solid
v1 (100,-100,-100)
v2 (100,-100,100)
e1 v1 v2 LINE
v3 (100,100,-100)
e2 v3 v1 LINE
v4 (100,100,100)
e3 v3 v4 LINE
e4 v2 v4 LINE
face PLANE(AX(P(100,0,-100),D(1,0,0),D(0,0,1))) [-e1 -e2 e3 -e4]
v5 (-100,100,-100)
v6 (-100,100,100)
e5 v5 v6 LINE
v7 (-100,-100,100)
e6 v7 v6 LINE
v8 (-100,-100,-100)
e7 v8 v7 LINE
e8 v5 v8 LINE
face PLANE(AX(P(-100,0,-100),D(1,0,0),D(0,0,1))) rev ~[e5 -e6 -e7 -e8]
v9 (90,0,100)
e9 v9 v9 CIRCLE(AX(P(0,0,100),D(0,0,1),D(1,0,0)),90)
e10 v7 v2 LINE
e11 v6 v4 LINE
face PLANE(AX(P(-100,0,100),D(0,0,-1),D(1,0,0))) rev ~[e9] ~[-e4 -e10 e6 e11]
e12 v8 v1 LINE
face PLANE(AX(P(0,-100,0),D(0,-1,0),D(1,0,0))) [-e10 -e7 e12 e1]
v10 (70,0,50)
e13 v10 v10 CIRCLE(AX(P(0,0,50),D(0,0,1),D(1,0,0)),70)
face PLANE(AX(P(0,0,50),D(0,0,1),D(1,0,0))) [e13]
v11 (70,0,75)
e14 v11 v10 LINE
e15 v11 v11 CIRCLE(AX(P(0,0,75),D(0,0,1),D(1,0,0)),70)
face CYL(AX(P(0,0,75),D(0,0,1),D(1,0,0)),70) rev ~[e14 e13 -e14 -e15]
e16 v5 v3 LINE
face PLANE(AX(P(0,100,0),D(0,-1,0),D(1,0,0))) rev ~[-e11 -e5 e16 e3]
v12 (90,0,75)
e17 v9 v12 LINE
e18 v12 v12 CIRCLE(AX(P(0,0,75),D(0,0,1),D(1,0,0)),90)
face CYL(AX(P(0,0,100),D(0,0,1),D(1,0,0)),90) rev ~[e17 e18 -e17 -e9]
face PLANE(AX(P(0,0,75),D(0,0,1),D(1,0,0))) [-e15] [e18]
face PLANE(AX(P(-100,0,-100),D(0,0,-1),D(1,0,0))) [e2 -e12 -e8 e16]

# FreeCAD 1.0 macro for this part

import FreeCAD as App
import Part
import Sketcher
from FreeCAD import Vector
Q = App.Units.Quantity

doc = App.newDocument("Part")
params = doc.addObject("Spreadsheet::Sheet", "Params")
for row, (alias, value) in enumerate([
    ("sketch1_width", "200 mm"),
    ("pad1_length", "200 mm"),
    ("sketch2_diameter", "180 mm"),
    ("pocket1_length", "25 mm"),
    ("sketch3_diameter", "140 mm"),
    ("pocket2_length", "25 mm"),
], start=1):
    params.set(f"A{row}", alias)
    params.set(f"B{row}", "=" + value)
    params.setAlias(f"B{row}", alias)

body = doc.addObject("PartDesign::Body", "Body")

# Sketch on XZ plane
sketch1 = body.newObject("Sketcher::SketchObject", "Sketch")
sketch1.AttachmentSupport = (doc.getObject("XZ_Plane"), [""])
sketch1.MapMode = "FlatFace"
sketch1.addGeometry([
    Part.LineSegment(Vector(-100, 100, 0), Vector(-100, -100, 0)),
    Part.LineSegment(Vector(-100, -100, 0), Vector(100, -100, 0)),
    Part.LineSegment(Vector(100, -100, 0), Vector(100, 100, 0)),
    Part.LineSegment(Vector(100, 100, 0), Vector(-100, 100, 0)),
], False)
sketch1.addConstraint([
    Sketcher.Constraint("Coincident", 0, 2, 1, 1),
    Sketcher.Constraint("Coincident", 1, 2, 2, 1),
    Sketcher.Constraint("Coincident", 2, 2, 3, 1),
    Sketcher.Constraint("Coincident", 3, 2, 0, 1),
    Sketcher.Constraint("Vertical", 0),
    Sketcher.Constraint("Horizontal", 1),
    Sketcher.Constraint("Vertical", 2),
    Sketcher.Constraint("Horizontal", 3),
    Sketcher.Constraint("Symmetric", 0, 2, 2, 2, -1, 1),
    Sketcher.Constraint("Equal", 3, 0),
    Sketcher.Constraint("DistanceX", 1, 1, 1, 2, Q("200 mm")),
])
sketch1.setExpression("Constraints[10]", "Params.sketch1_width")
pad1 = body.newObject("PartDesign::Pad", "Pad")
pad1.Profile = sketch1
pad1.setExpression("Length", "Params.pad1_length")
pad1.Midplane = True

# Sketch on XY plane
sketch2 = body.newObject("Sketcher::SketchObject", "Sketch001")
sketch2.AttachmentSupport = (doc.getObject("XY_Plane"), [""])
sketch2.MapMode = "FlatFace"
sketch2.AttachmentOffset = App.Placement(Vector(0, 0, 100), App.Rotation())
sketch2.addGeometry(Part.Circle(Vector(0, 0, 0), Vector(0, 0, 1), 90), False)
sketch2.addConstraint([
    Sketcher.Constraint("Coincident", 0, 3, -1, 1),
    Sketcher.Constraint("Diameter", 0, Q("180 mm")),
])
sketch2.setExpression("Constraints[1]", "Params.sketch2_diameter")
pocket1 = body.newObject("PartDesign::Pocket", "Pocket")
pocket1.Profile = sketch2
pocket1.setExpression("Length", "Params.pocket1_length")

# Sketch on XY plane
sketch3 = body.newObject("Sketcher::SketchObject", "Sketch002")
sketch3.AttachmentSupport = (doc.getObject("XY_Plane"), [""])
sketch3.MapMode = "FlatFace"
sketch3.AttachmentOffset = App.Placement(Vector(0, 0, 75), App.Rotation())
sketch3.addGeometry(Part.Circle(Vector(0, 0, 0), Vector(0, 0, 1), 70), False)
sketch3.addConstraint([
    Sketcher.Constraint("Coincident", 0, 3, -1, 1),
    Sketcher.Constraint("Diameter", 0, Q("140 mm")),
])
sketch3.setExpression("Constraints[1]", "Params.sketch3_diameter")
pocket2 = body.newObject("PartDesign::Pocket", "Pocket001")
pocket2.Profile = sketch3
pocket2.setExpression("Length", "Params.pocket2_length")

doc.recompute()
